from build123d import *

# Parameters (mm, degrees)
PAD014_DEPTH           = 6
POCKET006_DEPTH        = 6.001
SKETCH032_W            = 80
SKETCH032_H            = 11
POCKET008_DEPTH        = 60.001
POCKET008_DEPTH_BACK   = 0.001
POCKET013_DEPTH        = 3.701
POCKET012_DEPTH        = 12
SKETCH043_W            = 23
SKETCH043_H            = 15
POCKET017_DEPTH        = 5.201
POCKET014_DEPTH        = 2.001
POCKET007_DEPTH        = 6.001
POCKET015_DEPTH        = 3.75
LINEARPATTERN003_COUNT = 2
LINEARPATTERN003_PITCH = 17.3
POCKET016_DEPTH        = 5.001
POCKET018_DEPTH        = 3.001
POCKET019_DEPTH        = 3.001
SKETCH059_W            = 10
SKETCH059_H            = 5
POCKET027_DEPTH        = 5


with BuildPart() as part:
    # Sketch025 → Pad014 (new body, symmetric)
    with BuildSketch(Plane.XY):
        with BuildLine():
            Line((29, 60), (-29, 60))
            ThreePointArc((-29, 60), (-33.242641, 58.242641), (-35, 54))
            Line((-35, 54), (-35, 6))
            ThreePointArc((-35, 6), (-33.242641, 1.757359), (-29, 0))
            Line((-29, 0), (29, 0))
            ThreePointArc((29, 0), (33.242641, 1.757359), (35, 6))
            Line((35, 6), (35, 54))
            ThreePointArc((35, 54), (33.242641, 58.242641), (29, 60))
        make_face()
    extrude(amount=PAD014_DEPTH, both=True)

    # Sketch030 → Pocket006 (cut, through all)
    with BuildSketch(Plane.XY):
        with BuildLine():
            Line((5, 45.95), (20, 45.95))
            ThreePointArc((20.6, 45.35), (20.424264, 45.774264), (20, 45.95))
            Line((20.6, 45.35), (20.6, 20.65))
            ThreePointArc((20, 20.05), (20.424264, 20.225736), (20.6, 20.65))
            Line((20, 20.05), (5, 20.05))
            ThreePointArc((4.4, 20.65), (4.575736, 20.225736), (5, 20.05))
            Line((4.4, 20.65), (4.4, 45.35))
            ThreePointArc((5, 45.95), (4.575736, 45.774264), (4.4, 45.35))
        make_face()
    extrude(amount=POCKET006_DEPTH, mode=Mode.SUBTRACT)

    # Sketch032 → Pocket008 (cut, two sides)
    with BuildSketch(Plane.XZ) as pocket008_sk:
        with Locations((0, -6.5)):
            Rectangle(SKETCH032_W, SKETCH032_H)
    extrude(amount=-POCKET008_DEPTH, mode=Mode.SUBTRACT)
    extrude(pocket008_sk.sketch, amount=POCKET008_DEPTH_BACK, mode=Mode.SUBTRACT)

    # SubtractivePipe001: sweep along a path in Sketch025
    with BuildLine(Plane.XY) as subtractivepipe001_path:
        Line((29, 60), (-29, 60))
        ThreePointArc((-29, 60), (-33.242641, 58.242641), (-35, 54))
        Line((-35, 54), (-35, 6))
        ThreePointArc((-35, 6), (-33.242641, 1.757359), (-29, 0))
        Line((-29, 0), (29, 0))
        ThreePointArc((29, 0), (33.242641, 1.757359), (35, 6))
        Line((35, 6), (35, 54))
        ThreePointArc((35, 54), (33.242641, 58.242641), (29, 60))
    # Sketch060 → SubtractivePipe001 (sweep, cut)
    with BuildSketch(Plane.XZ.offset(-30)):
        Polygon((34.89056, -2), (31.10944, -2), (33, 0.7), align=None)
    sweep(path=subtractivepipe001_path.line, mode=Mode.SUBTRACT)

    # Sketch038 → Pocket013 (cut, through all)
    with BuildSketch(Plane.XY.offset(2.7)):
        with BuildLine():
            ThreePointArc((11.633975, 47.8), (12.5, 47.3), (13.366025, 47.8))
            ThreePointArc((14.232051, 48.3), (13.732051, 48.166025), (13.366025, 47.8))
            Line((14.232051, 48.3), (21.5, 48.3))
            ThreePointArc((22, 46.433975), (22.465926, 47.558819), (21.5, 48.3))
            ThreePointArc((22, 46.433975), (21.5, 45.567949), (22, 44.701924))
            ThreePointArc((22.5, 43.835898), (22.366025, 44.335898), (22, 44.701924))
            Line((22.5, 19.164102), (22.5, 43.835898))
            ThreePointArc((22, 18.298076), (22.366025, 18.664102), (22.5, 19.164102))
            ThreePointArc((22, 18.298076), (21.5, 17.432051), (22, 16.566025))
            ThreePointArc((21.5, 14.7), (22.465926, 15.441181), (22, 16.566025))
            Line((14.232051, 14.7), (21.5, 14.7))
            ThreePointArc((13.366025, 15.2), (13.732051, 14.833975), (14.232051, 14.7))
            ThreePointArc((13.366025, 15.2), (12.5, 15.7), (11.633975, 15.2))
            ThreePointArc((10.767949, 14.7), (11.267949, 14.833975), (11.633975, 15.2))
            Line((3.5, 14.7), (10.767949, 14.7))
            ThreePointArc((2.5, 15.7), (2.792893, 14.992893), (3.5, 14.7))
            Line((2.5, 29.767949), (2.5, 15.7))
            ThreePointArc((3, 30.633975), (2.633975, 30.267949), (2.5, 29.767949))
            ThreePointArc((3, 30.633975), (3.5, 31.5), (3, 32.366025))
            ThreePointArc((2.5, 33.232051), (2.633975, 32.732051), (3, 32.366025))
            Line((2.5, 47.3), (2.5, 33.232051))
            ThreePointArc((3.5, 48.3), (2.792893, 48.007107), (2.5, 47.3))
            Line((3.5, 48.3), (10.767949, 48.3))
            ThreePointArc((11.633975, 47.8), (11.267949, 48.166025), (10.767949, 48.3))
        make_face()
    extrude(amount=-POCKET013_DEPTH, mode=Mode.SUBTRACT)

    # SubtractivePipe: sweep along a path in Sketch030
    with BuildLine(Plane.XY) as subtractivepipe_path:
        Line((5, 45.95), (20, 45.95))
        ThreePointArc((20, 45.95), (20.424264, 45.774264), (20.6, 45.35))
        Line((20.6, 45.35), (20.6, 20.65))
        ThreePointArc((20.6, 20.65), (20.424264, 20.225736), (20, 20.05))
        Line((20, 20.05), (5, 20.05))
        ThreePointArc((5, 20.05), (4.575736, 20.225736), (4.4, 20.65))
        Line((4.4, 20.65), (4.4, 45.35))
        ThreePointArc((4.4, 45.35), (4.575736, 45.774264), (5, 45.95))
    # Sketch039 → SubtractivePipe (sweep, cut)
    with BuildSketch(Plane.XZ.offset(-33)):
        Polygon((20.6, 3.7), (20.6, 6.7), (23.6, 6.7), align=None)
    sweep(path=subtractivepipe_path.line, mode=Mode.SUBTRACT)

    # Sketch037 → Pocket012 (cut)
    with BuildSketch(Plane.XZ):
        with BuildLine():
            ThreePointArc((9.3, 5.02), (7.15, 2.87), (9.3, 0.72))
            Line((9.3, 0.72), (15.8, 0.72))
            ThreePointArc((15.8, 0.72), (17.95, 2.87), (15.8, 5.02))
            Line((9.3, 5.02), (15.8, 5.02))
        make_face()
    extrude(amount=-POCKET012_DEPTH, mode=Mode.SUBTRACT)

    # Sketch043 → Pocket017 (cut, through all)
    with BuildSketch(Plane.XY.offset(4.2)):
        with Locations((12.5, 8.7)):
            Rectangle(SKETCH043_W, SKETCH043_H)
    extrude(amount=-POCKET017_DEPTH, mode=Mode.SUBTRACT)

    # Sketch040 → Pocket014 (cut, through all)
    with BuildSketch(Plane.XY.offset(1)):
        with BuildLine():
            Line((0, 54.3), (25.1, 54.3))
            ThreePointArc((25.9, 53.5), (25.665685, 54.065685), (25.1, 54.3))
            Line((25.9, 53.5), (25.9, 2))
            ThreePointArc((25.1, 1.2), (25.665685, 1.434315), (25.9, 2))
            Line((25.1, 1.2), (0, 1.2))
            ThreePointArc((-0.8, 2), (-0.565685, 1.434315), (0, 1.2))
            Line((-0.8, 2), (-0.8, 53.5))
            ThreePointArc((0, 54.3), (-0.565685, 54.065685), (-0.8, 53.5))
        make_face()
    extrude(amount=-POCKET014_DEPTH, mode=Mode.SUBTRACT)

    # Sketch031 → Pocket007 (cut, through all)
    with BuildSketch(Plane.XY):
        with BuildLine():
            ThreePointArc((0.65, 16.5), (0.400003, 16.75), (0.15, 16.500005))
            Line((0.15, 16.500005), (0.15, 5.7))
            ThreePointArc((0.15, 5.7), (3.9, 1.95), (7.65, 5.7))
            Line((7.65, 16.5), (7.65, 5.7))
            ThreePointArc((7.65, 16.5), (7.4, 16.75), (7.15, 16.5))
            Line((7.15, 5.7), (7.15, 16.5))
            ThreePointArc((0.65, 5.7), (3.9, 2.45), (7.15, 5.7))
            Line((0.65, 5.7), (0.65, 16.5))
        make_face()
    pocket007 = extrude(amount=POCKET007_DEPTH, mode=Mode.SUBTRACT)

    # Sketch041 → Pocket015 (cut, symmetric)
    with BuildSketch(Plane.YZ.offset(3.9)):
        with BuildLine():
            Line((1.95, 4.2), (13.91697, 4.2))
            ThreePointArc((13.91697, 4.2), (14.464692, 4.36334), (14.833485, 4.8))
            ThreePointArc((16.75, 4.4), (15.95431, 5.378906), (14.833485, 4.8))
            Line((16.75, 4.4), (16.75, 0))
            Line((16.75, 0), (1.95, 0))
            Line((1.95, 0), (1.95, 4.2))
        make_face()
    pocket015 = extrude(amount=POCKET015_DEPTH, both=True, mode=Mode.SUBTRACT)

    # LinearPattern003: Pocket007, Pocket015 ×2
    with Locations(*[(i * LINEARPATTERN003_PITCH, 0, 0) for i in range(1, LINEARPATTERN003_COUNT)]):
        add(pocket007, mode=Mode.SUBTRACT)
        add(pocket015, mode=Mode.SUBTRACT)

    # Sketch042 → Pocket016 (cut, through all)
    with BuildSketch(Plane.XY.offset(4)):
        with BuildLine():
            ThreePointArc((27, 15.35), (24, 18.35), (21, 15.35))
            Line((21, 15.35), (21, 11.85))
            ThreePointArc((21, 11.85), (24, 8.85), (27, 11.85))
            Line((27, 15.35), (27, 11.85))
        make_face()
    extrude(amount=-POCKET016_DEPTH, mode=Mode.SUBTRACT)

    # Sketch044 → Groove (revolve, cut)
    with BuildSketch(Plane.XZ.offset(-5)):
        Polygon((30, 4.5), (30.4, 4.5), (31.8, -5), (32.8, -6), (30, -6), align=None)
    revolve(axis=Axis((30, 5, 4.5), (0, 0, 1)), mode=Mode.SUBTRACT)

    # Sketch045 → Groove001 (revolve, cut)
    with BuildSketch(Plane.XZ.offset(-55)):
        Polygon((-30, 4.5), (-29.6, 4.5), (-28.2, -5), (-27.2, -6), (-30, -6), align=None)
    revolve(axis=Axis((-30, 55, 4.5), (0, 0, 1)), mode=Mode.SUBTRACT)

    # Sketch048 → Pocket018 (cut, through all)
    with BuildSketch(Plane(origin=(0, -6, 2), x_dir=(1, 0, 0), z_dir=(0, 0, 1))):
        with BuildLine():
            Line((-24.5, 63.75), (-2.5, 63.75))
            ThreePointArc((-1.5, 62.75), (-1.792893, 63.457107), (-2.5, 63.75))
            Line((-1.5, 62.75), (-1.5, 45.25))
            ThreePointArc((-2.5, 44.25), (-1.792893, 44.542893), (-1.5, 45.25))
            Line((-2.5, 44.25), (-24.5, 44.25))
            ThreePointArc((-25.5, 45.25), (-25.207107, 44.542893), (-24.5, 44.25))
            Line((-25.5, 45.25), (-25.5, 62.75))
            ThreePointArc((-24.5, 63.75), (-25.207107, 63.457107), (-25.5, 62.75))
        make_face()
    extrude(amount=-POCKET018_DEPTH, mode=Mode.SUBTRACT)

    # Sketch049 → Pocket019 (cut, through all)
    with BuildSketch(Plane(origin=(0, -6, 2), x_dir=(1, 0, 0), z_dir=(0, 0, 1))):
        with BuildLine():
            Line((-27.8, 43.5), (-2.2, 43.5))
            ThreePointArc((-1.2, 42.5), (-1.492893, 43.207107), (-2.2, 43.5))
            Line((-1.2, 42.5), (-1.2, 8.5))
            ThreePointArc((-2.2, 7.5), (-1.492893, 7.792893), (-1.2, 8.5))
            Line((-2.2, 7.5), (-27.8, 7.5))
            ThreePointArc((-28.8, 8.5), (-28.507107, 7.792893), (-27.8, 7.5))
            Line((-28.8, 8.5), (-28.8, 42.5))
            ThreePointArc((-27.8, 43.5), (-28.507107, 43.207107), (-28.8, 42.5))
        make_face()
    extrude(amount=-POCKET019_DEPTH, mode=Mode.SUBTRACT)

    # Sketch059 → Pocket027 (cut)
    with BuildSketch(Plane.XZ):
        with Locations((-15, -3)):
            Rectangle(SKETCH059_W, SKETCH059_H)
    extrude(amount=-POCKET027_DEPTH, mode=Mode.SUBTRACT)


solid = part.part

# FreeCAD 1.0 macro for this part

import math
import FreeCAD as App
import Part
import Sketcher
from FreeCAD import Vector
Q = App.Units.Quantity

doc = App.newDocument("Part")
body = doc.addObject("PartDesign::Body", "Body")

# Sketch on XY plane
sketch1 = doc.addObject("Sketcher::SketchObject", "Sketch")
body.addObject(sketch1)
sketch1.AttachmentSupport = (doc.XY_Plane, [""])
sketch1.MapMode = "FlatFace"
sketch1.addGeometry([
    Part.LineSegment(Vector(29, 60, 0), Vector(-29, 60, 0)),  # 0
    Part.ArcOfCircle(Part.Circle(Vector(-29.000001, 54.000001, 0), Vector(0, 0, 1), 5.999999), math.radians(89.99999), math.radians(180.00001)),  # 1
    Part.LineSegment(Vector(-35, 54, 0), Vector(-35, 6, 0)),  # 2
    Part.ArcOfCircle(Part.Circle(Vector(-29.000001, 5.999999, 0), Vector(0, 0, 1), 5.999999), math.radians(179.99999), math.radians(270.00001)),  # 3
    Part.LineSegment(Vector(-29, 0, 0), Vector(29, 0, 0)),  # 4
    Part.ArcOfCircle(Part.Circle(Vector(29.000001, 5.999999, 0), Vector(0, 0, 1), 5.999999), math.radians(-90.00001), math.radians(0.00001)),  # 5
    Part.LineSegment(Vector(35, 6, 0), Vector(35, 54, 0)),  # 6
    Part.ArcOfCircle(Part.Circle(Vector(29.000001, 54.000001, 0), Vector(0, 0, 1), 5.999999), math.radians(-0.00001), math.radians(90.00001)),  # 7
], False)
sketch1.addConstraint([
    Sketcher.Constraint("Tangent", 0, 2, 1, 1),
    Sketcher.Constraint("Tangent", 1, 2, 2, 1),
    Sketcher.Constraint("Tangent", 2, 2, 3, 1),
    Sketcher.Constraint("Tangent", 3, 2, 4, 1),
    Sketcher.Constraint("Tangent", 4, 2, 5, 1),
    Sketcher.Constraint("Tangent", 5, 2, 6, 1),
    Sketcher.Constraint("Tangent", 6, 2, 7, 1),
    Sketcher.Constraint("Tangent", 7, 2, 0, 1),
    Sketcher.Constraint("Horizontal", 0),
    Sketcher.Constraint("Vertical", 2),
    Sketcher.Constraint("Horizontal", 4),
    Sketcher.Constraint("Vertical", 6),
    Sketcher.Constraint("Equal", 1, 3),
    Sketcher.Constraint("Equal", 3, 5),
    Sketcher.Constraint("Equal", 5, 7),
    Sketcher.Constraint("Symmetric", 3, 2, 4, 2, -1, 1),
    Sketcher.Constraint("Radius", 1, Q("5.999999 mm")),
    Sketcher.Constraint("DistanceX", 0, 2, 0, 1, Q("58 mm")),
    Sketcher.Constraint("DistanceY", 2, 2, 2, 1, Q("48 mm")),
])
pad1 = doc.addObject("PartDesign::Pad", "Pad")
body.addObject(pad1)
pad1.Profile = sketch1
pad1.Length = 12
pad1.Midplane = True

# Sketch on XY plane
sketch2 = doc.addObject("Sketcher::SketchObject", "Sketch001")
body.addObject(sketch2)
sketch2.AttachmentSupport = (doc.XY_Plane, [""])
sketch2.MapMode = "FlatFace"
sketch2.addGeometry([
    Part.LineSegment(Vector(20, 45.95, 0), Vector(5, 45.95, 0)),  # 0
    Part.ArcOfCircle(Part.Circle(Vector(5, 45.35, 0), Vector(0, 0, 1), 0.6), math.radians(90.000022), math.radians(179.999978)),  # 1
    Part.LineSegment(Vector(4.4, 45.35, 0), Vector(4.4, 20.65, 0)),  # 2
    Part.ArcOfCircle(Part.Circle(Vector(5, 20.65, 0), Vector(0, 0, 1), 0.6), math.radians(-179.999978), math.radians(-90.000022)),  # 3
    Part.LineSegment(Vector(5, 20.05, 0), Vector(20, 20.05, 0)),  # 4
    Part.ArcOfCircle(Part.Circle(Vector(20, 20.65, 0), Vector(0, 0, 1), 0.6), math.radians(-89.999978), math.radians(-0.000022)),  # 5
    Part.LineSegment(Vector(20.6, 20.65, 0), Vector(20.6, 45.35, 0)),  # 6
    Part.ArcOfCircle(Part.Circle(Vector(20, 45.35, 0), Vector(0, 0, 1), 0.6), math.radians(0.000022), math.radians(89.999978)),  # 7
], False)
sketch2.addConstraint([
    Sketcher.Constraint("Tangent", 0, 2, 1, 1),
    Sketcher.Constraint("Tangent", 1, 2, 2, 1),
    Sketcher.Constraint("Tangent", 2, 2, 3, 1),
    Sketcher.Constraint("Tangent", 3, 2, 4, 1),
    Sketcher.Constraint("Tangent", 4, 2, 5, 1),
    Sketcher.Constraint("Tangent", 5, 2, 6, 1),
    Sketcher.Constraint("Tangent", 6, 2, 7, 1),
    Sketcher.Constraint("Tangent", 7, 2, 0, 1),
    Sketcher.Constraint("Horizontal", 0),
    Sketcher.Constraint("Vertical", 2),
    Sketcher.Constraint("Horizontal", 4),
    Sketcher.Constraint("Vertical", 6),
    Sketcher.Constraint("Equal", 1, 3),
    Sketcher.Constraint("Equal", 3, 5),
    Sketcher.Constraint("Equal", 5, 7),
    Sketcher.Constraint("Radius", 1, Q("0.6 mm")),
    Sketcher.Constraint("DistanceX", 0, 2, 0, 1, Q("15 mm")),
    Sketcher.Constraint("DistanceY", 2, 2, 2, 1, Q("24.7 mm")),
    Sketcher.Constraint("DistanceX", -1, 1, 1, 3, Q("5 mm")),
    Sketcher.Constraint("DistanceY", -1, 1, 1, 3, Q("45.35 mm")),
])
pocket1 = doc.addObject("PartDesign::Pocket", "Pocket")
body.addObject(pocket1)
pocket1.Profile = sketch2
pocket1.Type = "ThroughAll"
pocket1.Reversed = True

# Sketch on XZ plane
sketch3 = doc.addObject("Sketcher::SketchObject", "Sketch002")
body.addObject(sketch3)
sketch3.AttachmentSupport = (doc.XZ_Plane, [""])
sketch3.MapMode = "FlatFace"
sketch3.addGeometry([
    Part.LineSegment(Vector(-40, -1, 0), Vector(-40, -12, 0)),
    Part.LineSegment(Vector(-40, -12, 0), Vector(40, -12, 0)),
    Part.LineSegment(Vector(40, -12, 0), Vector(40, -1, 0)),
    Part.LineSegment(Vector(40, -1, 0), Vector(-40, -1, 0)),
], False)
sketch3.addConstraint([
    Sketcher.Constraint("Coincident", 0, 2, 1, 1),
    Sketcher.Constraint("Coincident", 1, 2, 2, 1),
    Sketcher.Constraint("Coincident", 2, 2, 3, 1),
    Sketcher.Constraint("Coincident", 3, 2, 0, 1),
    Sketcher.Constraint("Vertical", 0),
    Sketcher.Constraint("Horizontal", 1),
    Sketcher.Constraint("Vertical", 2),
    Sketcher.Constraint("Horizontal", 3),
    Sketcher.Constraint("DistanceX", 1, 1, 1, 2, Q("80 mm")),
    Sketcher.Constraint("DistanceY", 0, 2, 0, 1, Q("11 mm")),
    Sketcher.Constraint("DistanceX", 0, 2, -1, 1, Q("40 mm")),
    Sketcher.Constraint("DistanceY", 0, 2, -1, 1, Q("12 mm")),
])
pocket2 = doc.addObject("PartDesign::Pocket", "Pocket001")
body.addObject(pocket2)
pocket2.Profile = sketch3
pocket2.Type = "ThroughAll"
pocket2.Midplane = True

# Sketch on XZ plane
sketch4 = doc.addObject("Sketcher::SketchObject", "Sketch003")
body.addObject(sketch4)
sketch4.AttachmentSupport = (doc.XZ_Plane, [""])
sketch4.MapMode = "FlatFace"
sketch4.AttachmentOffset = App.Placement(Vector(0, 0, -30), App.Rotation())
sketch4.addGeometry([
    Part.LineSegment(Vector(31.10944, -2, 0), Vector(34.89056, -2, 0)),
    Part.LineSegment(Vector(34.89056, -2, 0), Vector(33, 0.7, 0)),
    Part.LineSegment(Vector(33, 0.7, 0), Vector(31.10944, -2, 0)),
], False)
sketch4.addConstraint([
    Sketcher.Constraint("Coincident", 0, 2, 1, 1),
    Sketcher.Constraint("Coincident", 1, 2, 2, 1),
    Sketcher.Constraint("Coincident", 2, 2, 0, 1),
    Sketcher.Constraint("Horizontal", 0),
    Sketcher.Constraint("Equal", 1, 2),
    Sketcher.Constraint("Angle", 1, Q("124.999995 deg")),
    Sketcher.Constraint("DistanceY", 0, 2, -1, 1, Q("2 mm")),
    Sketcher.Constraint("DistanceX", -1, 1, 1, 2, Q("33 mm")),
    Sketcher.Constraint("DistanceY", -1, 1, 1, 2, Q("0.7 mm")),
])

# Sketch on XY plane
sketch5 = doc.addObject("Sketcher::SketchObject", "Sketch004")
body.addObject(sketch5)
sketch5.AttachmentSupport = (doc.XY_Plane, [""])
sketch5.MapMode = "FlatFace"
sketch5.addGeometry([
    Part.LineSegment(Vector(29, 60, 0), Vector(-29, 60, 0)),  # 0
    Part.ArcOfCircle(Part.Circle(Vector(-29.000001, 54.000001, 0), Vector(0, 0, 1), 5.999999), math.radians(89.99999), math.radians(180.00001)),  # 1
    Part.LineSegment(Vector(-35, 54, 0), Vector(-35, 6, 0)),  # 2
    Part.ArcOfCircle(Part.Circle(Vector(-29.000001, 5.999999, 0), Vector(0, 0, 1), 5.999999), math.radians(179.99999), math.radians(270.00001)),  # 3
    Part.LineSegment(Vector(-29, 0, 0), Vector(29, 0, 0)),  # 4
    Part.ArcOfCircle(Part.Circle(Vector(29.000001, 5.999999, 0), Vector(0, 0, 1), 5.999999), math.radians(-90.00001), math.radians(0.00001)),  # 5
    Part.LineSegment(Vector(35, 6, 0), Vector(35, 54, 0)),  # 6
    Part.ArcOfCircle(Part.Circle(Vector(29.000001, 54.000001, 0), Vector(0, 0, 1), 5.999999), math.radians(-0.00001), math.radians(90.00001)),  # 7
], False)
sketch5.addConstraint([
    Sketcher.Constraint("Tangent", 0, 2, 1, 1),
    Sketcher.Constraint("Tangent", 1, 2, 2, 1),
    Sketcher.Constraint("Tangent", 2, 2, 3, 1),
    Sketcher.Constraint("Tangent", 3, 2, 4, 1),
    Sketcher.Constraint("Tangent", 4, 2, 5, 1),
    Sketcher.Constraint("Tangent", 5, 2, 6, 1),
    Sketcher.Constraint("Tangent", 6, 2, 7, 1),
    Sketcher.Constraint("Tangent", 7, 2, 0, 1),
    Sketcher.Constraint("Horizontal", 0),
    Sketcher.Constraint("Vertical", 2),
    Sketcher.Constraint("Horizontal", 4),
    Sketcher.Constraint("Vertical", 6),
    Sketcher.Constraint("Equal", 1, 3),
    Sketcher.Constraint("Equal", 3, 5),
    Sketcher.Constraint("Equal", 5, 7),
    Sketcher.Constraint("Symmetric", 3, 2, 4, 2, -1, 1),
    Sketcher.Constraint("Radius", 1, Q("5.999999 mm")),
    Sketcher.Constraint("DistanceX", 0, 2, 0, 1, Q("58 mm")),
    Sketcher.Constraint("DistanceY", 2, 2, 2, 1, Q("48 mm")),
])
doc.recompute()

subtractivepipe = doc.addObject("PartDesign::SubtractivePipe", "SubtractivePipe")
body.addObject(subtractivepipe)
subtractivepipe.Profile = sketch4
subtractivepipe.Spine = (sketch5, ["Edge1", "Edge2", "Edge3", "Edge4", "Edge5", "Edge6", "Edge7", "Edge8"])

# Sketch on XY plane
sketch6 = doc.addObject("Sketcher::SketchObject", "Sketch005")
body.addObject(sketch6)
sketch6.AttachmentSupport = (doc.XY_Plane, [""])
sketch6.MapMode = "FlatFace"
sketch6.AttachmentOffset = App.Placement(Vector(0, 0, 2.7), App.Rotation())
sketch6.addGeometry([
    Part.ArcOfCircle(Part.Circle(Vector(12.5, 48.299999, 0), Vector(0, 0, 1), 0.999999), math.radians(-150.000023), math.radians(-29.999977)),  # 0
    Part.ArcOfCircle(Part.Circle(Vector(10.767947, 47.299996, 0), Vector(0, 0, 1), 1.000004), math.radians(30.000139), math.radians(89.999896)),  # 1
    Part.LineSegment(Vector(10.767949, 48.3, 0), Vector(3.5, 48.3, 0)),  # 2
    Part.ArcOfCircle(Part.Circle(Vector(3.499999, 47.300001, 0), Vector(0, 0, 1), 0.999999), math.radians(89.999957), math.radians(180.000043)),  # 3
    Part.LineSegment(Vector(2.5, 47.3, 0), Vector(2.5, 33.232051, 0)),  # 4
    Part.ArcOfCircle(Part.Circle(Vector(3.500004, 33.232053, 0), Vector(0, 0, 1), 1.000004), math.radians(-179.999896), math.radians(-120.000139)),  # 5
    Part.ArcOfCircle(Part.Circle(Vector(2.500001, 31.5, 0), Vector(0, 0, 1), 0.999999), math.radians(-60.000023), math.radians(60.000023)),  # 6
    Part.ArcOfCircle(Part.Circle(Vector(3.500004, 29.767947, 0), Vector(0, 0, 1), 1.000004), math.radians(120.000139), math.radians(179.999896)),  # 7
    Part.LineSegment(Vector(2.5, 29.767949, 0), Vector(2.5, 15.7, 0)),  # 8
    Part.ArcOfCircle(Part.Circle(Vector(3.499999, 15.699999, 0), Vector(0, 0, 1), 0.999999), math.radians(179.999957), math.radians(270.000043)),  # 9
    Part.LineSegment(Vector(3.5, 14.7, 0), Vector(10.767949, 14.7, 0)),  # 10
    Part.ArcOfCircle(Part.Circle(Vector(10.767947, 15.700004, 0), Vector(0, 0, 1), 1.000004), math.radians(-89.999896), math.radians(-30.000139)),  # 11
    Part.ArcOfCircle(Part.Circle(Vector(12.5, 14.700001, 0), Vector(0, 0, 1), 0.999999), math.radians(29.999977), math.radians(150.000023)),  # 12
    Part.ArcOfCircle(Part.Circle(Vector(14.232053, 15.700004, 0), Vector(0, 0, 1), 1.000004), math.radians(-149.999861), math.radians(-90.000104)),  # 13
    Part.LineSegment(Vector(14.232051, 14.7, 0), Vector(21.5, 14.7, 0)),  # 14
    Part.ArcOfCircle(Part.Circle(Vector(21.5, 15.7, 0), Vector(0, 0, 1), 1), math.radians(-90.000022), math.radians(60.000016)),  # 15
    Part.ArcOfCircle(Part.Circle(Vector(22.5, 17.43205, 0), Vector(0, 0, 1), 1), math.radians(120.000006), math.radians(239.999994)),  # 16
    Part.ArcOfCircle(Part.Circle(Vector(21.499996, 19.164104, 0), Vector(0, 0, 1), 1.000004), math.radians(-59.999861), math.radians(-0.000104)),  # 17
    Part.LineSegment(Vector(22.5, 19.164102, 0), Vector(22.5, 43.835898, 0)),  # 18
    Part.ArcOfCircle(Part.Circle(Vector(21.499996, 43.835896, 0), Vector(0, 0, 1), 1.000004), math.radians(0.000104), math.radians(59.999861)),  # 19
    Part.ArcOfCircle(Part.Circle(Vector(22.5, 45.567949, 0), Vector(0, 0, 1), 1), math.radians(120.000006), math.radians(239.999994)),  # 20
    Part.ArcOfCircle(Part.Circle(Vector(21.5, 47.3, 0), Vector(0, 0, 1), 1), math.radians(-60.000016), math.radians(90.000022)),  # 21
    Part.LineSegment(Vector(21.5, 48.3, 0), Vector(14.232051, 48.3, 0)),  # 22
    Part.ArcOfCircle(Part.Circle(Vector(14.232053, 47.299996, 0), Vector(0, 0, 1), 1.000004), math.radians(90.000104), math.radians(149.999861)),  # 23
], False)
sketch6.addConstraint([
    Sketcher.Constraint("Coincident", 0, 1, 1, 1),
    Sketcher.Constraint("Tangent", 1, 2, 2, 1),
    Sketcher.Constraint("Tangent", 2, 2, 3, 1),
    Sketcher.Constraint("Tangent", 3, 2, 4, 1),
    Sketcher.Constraint("Tangent", 4, 2, 5, 1),
    Sketcher.Constraint("Coincident", 5, 2, 6, 2),
    Sketcher.Constraint("Coincident", 6, 1, 7, 1),
    Sketcher.Constraint("Tangent", 7, 2, 8, 1),
    Sketcher.Constraint("Tangent", 8, 2, 9, 1),
    Sketcher.Constraint("Tangent", 9, 2, 10, 1),
    Sketcher.Constraint("Tangent", 10, 2, 11, 1),
    Sketcher.Constraint("Coincident", 11, 2, 12, 2),
    Sketcher.Constraint("Coincident", 12, 1, 13, 1),
    Sketcher.Constraint("Tangent", 13, 2, 14, 1),
    Sketcher.Constraint("Tangent", 14, 2, 15, 1),
    Sketcher.Constraint("Tangent", 15, 2, 16, 2),
    Sketcher.Constraint("Coincident", 16, 1, 17, 1),
    Sketcher.Constraint("Tangent", 17, 2, 18, 1),
    Sketcher.Constraint("Tangent", 18, 2, 19, 1),
    Sketcher.Constraint("Coincident", 19, 2, 20, 2),
    Sketcher.Constraint("Tangent", 20, 1, 21, 1),
    Sketcher.Constraint("Tangent", 21, 2, 22, 1),
    Sketcher.Constraint("Tangent", 22, 2, 23, 1),
    Sketcher.Constraint("Coincident", 23, 2, 0, 2),
    Sketcher.Constraint("Horizontal", 2),
    Sketcher.Constraint("Vertical", 4),
    Sketcher.Constraint("Vertical", 8),
    Sketcher.Constraint("Horizontal", 10),
    Sketcher.Constraint("Horizontal", 14),
    Sketcher.Constraint("Vertical", 18),
    Sketcher.Constraint("Horizontal", 22),
    Sketcher.Constraint("Equal", 0, 3),
    Sketcher.Constraint("Equal", 1, 5),
    Sketcher.Constraint("Equal", 3, 6),
    Sketcher.Constraint("Equal", 5, 7),
    Sketcher.Constraint("Equal", 6, 9),
    Sketcher.Constraint("Equal", 7, 11),
    Sketcher.Constraint("Equal", 9, 12),
    Sketcher.Constraint("Equal", 11, 13),
    Sketcher.Constraint("Equal", 12, 15),
    Sketcher.Constraint("Equal", 15, 16),
    Sketcher.Constraint("Equal", 13, 17),
    Sketcher.Constraint("Equal", 17, 19),
    Sketcher.Constraint("Equal", 16, 20),
    Sketcher.Constraint("Equal", 20, 21),
    Sketcher.Constraint("Equal", 19, 23),
    Sketcher.Constraint("Horizontal", 11, 3, 13, 3),
    Sketcher.Constraint("Horizontal", 3, 3, 21, 3),
    Sketcher.Constraint("Horizontal", 0, 3, 1, 2),
    Sketcher.Constraint("Horizontal", 12, 3, 9, 2),
    Sketcher.Constraint("Horizontal", 11, 2, 12, 1),
    Sketcher.Constraint("Horizontal", 0, 1, 23, 2),
    Sketcher.Constraint("Vertical", 5, 3, 7, 3),
    Sketcher.Constraint("Vertical", 1, 3, 11, 3),
    Sketcher.Constraint("Vertical", 16, 3, 20, 3),
    Sketcher.Constraint("Vertical", 15, 3, 21, 3),
    Sketcher.Constraint("Vertical", 6, 3, 3, 2),
    Sketcher.Constraint("Vertical", 5, 2, 6, 1),
    Sketcher.Constraint("Vertical", 0, 1, 11, 2),
    Sketcher.Constraint("Vertical", 15, 2, 16, 1),
    Sketcher.Constraint("Vertical", 20, 3, 17, 2),
    Sketcher.Constraint("Vertical", 16, 1, 19, 2),
    Sketcher.Constraint("Equal", 10, 14),
    Sketcher.Constraint("Equal", 4, 8),
    Sketcher.Constraint("Radius", 0, Q("0.999999 mm")),
    Sketcher.Constraint("DistanceX", -1, 1, 5, 2, Q("3 mm")),
    Sketcher.Constraint("DistanceX", -1, 1, 15, 2, Q("22 mm")),
    Sketcher.Constraint("DistanceX", 3, 3, 0, 3, Q("9.000001 mm")),
    Sketcher.Constraint("DistanceX", 15, 3, 16, 3, Q("1 mm")),
    Sketcher.Constraint("DistanceY", -1, 1, 0, 3, Q("48.299999 mm")),
    Sketcher.Constraint("DistanceY", -1, 1, 6, 3, Q("31.5 mm")),
    Sketcher.Constraint("DistanceY", -1, 1, 0, 1, Q("47.8 mm")),
    Sketcher.Constraint("Radius", 1, Q("1.000004 mm")),
])
pocket3 = doc.addObject("PartDesign::Pocket", "Pocket002")
body.addObject(pocket3)
pocket3.Profile = sketch6
pocket3.Type = "ThroughAll"

# Sketch on XZ plane
sketch7 = doc.addObject("Sketcher::SketchObject", "Sketch006")
body.addObject(sketch7)
sketch7.AttachmentSupport = (doc.XZ_Plane, [""])
sketch7.MapMode = "FlatFace"
sketch7.AttachmentOffset = App.Placement(Vector(0, 0, -33), App.Rotation())
sketch7.addGeometry([
    Part.LineSegment(Vector(20.6, 6.7, 0), Vector(20.6, 3.7, 0)),
    Part.LineSegment(Vector(20.6, 3.7, 0), Vector(23.6, 6.7, 0)),
    Part.LineSegment(Vector(23.6, 6.7, 0), Vector(20.6, 6.7, 0)),
], False)
sketch7.addConstraint([
    Sketcher.Constraint("Coincident", 0, 2, 1, 1),
    Sketcher.Constraint("Coincident", 1, 2, 2, 1),
    Sketcher.Constraint("Coincident", 2, 2, 0, 1),
    Sketcher.Constraint("Vertical", 0),
    Sketcher.Constraint("Horizontal", 2),
    Sketcher.Constraint("Equal", 2, 0),
    Sketcher.Constraint("DistanceX", 2, 2, 2, 1, Q("3 mm")),
    Sketcher.Constraint("DistanceX", -1, 1, 0, 2, Q("20.6 mm")),
    Sketcher.Constraint("DistanceY", -1, 1, 0, 2, Q("3.7 mm")),
])

# Sketch on XY plane
sketch8 = doc.addObject("Sketcher::SketchObject", "Sketch007")
body.addObject(sketch8)
sketch8.AttachmentSupport = (doc.XY_Plane, [""])
sketch8.MapMode = "FlatFace"
sketch8.addGeometry([
    Part.LineSegment(Vector(5, 45.95, 0), Vector(20, 45.95, 0)),  # 0
    Part.ArcOfCircle(Part.Circle(Vector(20, 45.35, 0), Vector(0, 0, 1), 0.6), math.radians(0.000022), math.radians(89.999978)),  # 1
    Part.LineSegment(Vector(20.6, 45.35, 0), Vector(20.6, 20.65, 0)),  # 2
    Part.ArcOfCircle(Part.Circle(Vector(20, 20.65, 0), Vector(0, 0, 1), 0.6), math.radians(-89.999978), math.radians(-0.000022)),  # 3
    Part.LineSegment(Vector(20, 20.05, 0), Vector(5, 20.05, 0)),  # 4
    Part.ArcOfCircle(Part.Circle(Vector(5, 20.65, 0), Vector(0, 0, 1), 0.6), math.radians(-179.999978), math.radians(-90.000022)),  # 5
    Part.LineSegment(Vector(4.4, 20.65, 0), Vector(4.4, 45.35, 0)),  # 6
    Part.ArcOfCircle(Part.Circle(Vector(5, 45.35, 0), Vector(0, 0, 1), 0.6), math.radians(90.000022), math.radians(179.999978)),  # 7
], False)
sketch8.addConstraint([
    Sketcher.Constraint("Tangent", 0, 2, 1, 2),
    Sketcher.Constraint("Tangent", 1, 1, 2, 1),
    Sketcher.Constraint("Tangent", 2, 2, 3, 2),
    Sketcher.Constraint("Tangent", 3, 1, 4, 1),
    Sketcher.Constraint("Tangent", 4, 2, 5, 2),
    Sketcher.Constraint("Tangent", 5, 1, 6, 1),
    Sketcher.Constraint("Tangent", 6, 2, 7, 2),
    Sketcher.Constraint("Tangent", 7, 1, 0, 1),
    Sketcher.Constraint("Horizontal", 0),
    Sketcher.Constraint("Vertical", 2),
    Sketcher.Constraint("Horizontal", 4),
    Sketcher.Constraint("Vertical", 6),
    Sketcher.Constraint("Equal", 1, 3),
    Sketcher.Constraint("Equal", 3, 5),
    Sketcher.Constraint("Equal", 5, 7),
    Sketcher.Constraint("Radius", 1, Q("0.6 mm")),
    Sketcher.Constraint("DistanceX", 0, 1, 0, 2, Q("15 mm")),
    Sketcher.Constraint("DistanceY", 2, 2, 2, 1, Q("24.7 mm")),
    Sketcher.Constraint("DistanceX", -1, 1, 1, 3, Q("20 mm")),
    Sketcher.Constraint("DistanceY", -1, 1, 1, 3, Q("45.35 mm")),
])
doc.recompute()

subtractivepipe2 = doc.addObject("PartDesign::SubtractivePipe", "SubtractivePipe001")
body.addObject(subtractivepipe2)
subtractivepipe2.Profile = sketch7
subtractivepipe2.Spine = (sketch8, ["Edge1", "Edge2", "Edge3", "Edge4", "Edge5", "Edge6", "Edge7", "Edge8"])

# Sketch on XZ plane
sketch9 = doc.addObject("Sketcher::SketchObject", "Sketch008")
body.addObject(sketch9)
sketch9.AttachmentSupport = (doc.XZ_Plane, [""])
sketch9.MapMode = "FlatFace"
sketch9.addGeometry([
    Part.ArcOfCircle(Part.Circle(Vector(9.3, 2.87, 0), Vector(0, 0, 1), 2.15), math.radians(90), math.radians(270)),
    Part.LineSegment(Vector(9.3, 0.72, 0), Vector(15.8, 0.72, 0)),
    Part.ArcOfCircle(Part.Circle(Vector(15.8, 2.87, 0), Vector(0, 0, 1), 2.15), math.radians(-90), math.radians(90)),
    Part.LineSegment(Vector(15.8, 5.02, 0), Vector(9.3, 5.02, 0)),
], False)
sketch9.addConstraint([
    Sketcher.Constraint("Tangent", 0, 2, 1, 1),
    Sketcher.Constraint("Tangent", 1, 2, 2, 1),
    Sketcher.Constraint("Tangent", 2, 2, 3, 1),
    Sketcher.Constraint("Tangent", 3, 2, 0, 1),
    Sketcher.Constraint("Horizontal", 1),
    Sketcher.Constraint("Horizontal", 3),
    Sketcher.Constraint("Radius", 0, Q("2.15 mm")),
    Sketcher.Constraint("DistanceX", 1, 1, 1, 2, Q("6.5 mm")),
    Sketcher.Constraint("DistanceX", -1, 1, 0, 3, Q("9.3 mm")),
    Sketcher.Constraint("DistanceY", -1, 1, 0, 3, Q("2.87 mm")),
])
pocket4 = doc.addObject("PartDesign::Pocket", "Pocket003")
body.addObject(pocket4)
pocket4.Profile = sketch9
pocket4.Length = 12

# Sketch on XY plane
sketch10 = doc.addObject("Sketcher::SketchObject", "Sketch009")
body.addObject(sketch10)
sketch10.AttachmentSupport = (doc.XY_Plane, [""])
sketch10.MapMode = "FlatFace"
sketch10.AttachmentOffset = App.Placement(Vector(0, 0, 4.2), App.Rotation())
sketch10.addGeometry([
    Part.LineSegment(Vector(1, 16.2, 0), Vector(1, 1.2, 0)),
    Part.LineSegment(Vector(1, 1.2, 0), Vector(24, 1.2, 0)),
    Part.LineSegment(Vector(24, 1.2, 0), Vector(24, 16.2, 0)),
    Part.LineSegment(Vector(24, 16.2, 0), Vector(1, 16.2, 0)),
], False)
sketch10.addConstraint([
    Sketcher.Constraint("Coincident", 0, 2, 1, 1),
    Sketcher.Constraint("Coincident", 1, 2, 2, 1),
    Sketcher.Constraint("Coincident", 2, 2, 3, 1),
    Sketcher.Constraint("Coincident", 3, 2, 0, 1),
    Sketcher.Constraint("Vertical", 0),
    Sketcher.Constraint("Horizontal", 1),
    Sketcher.Constraint("Vertical", 2),
    Sketcher.Constraint("Horizontal", 3),
    Sketcher.Constraint("DistanceX", 1, 1, 1, 2, Q("23 mm")),
    Sketcher.Constraint("DistanceY", 0, 2, 0, 1, Q("15 mm")),
    Sketcher.Constraint("DistanceX", -1, 1, 0, 2, Q("1 mm")),
    Sketcher.Constraint("DistanceY", -1, 1, 0, 2, Q("1.2 mm")),
])
pocket5 = doc.addObject("PartDesign::Pocket", "Pocket004")
body.addObject(pocket5)
pocket5.Profile = sketch10
pocket5.Type = "ThroughAll"

# Sketch on XY plane
sketch11 = doc.addObject("Sketcher::SketchObject", "Sketch010")
body.addObject(sketch11)
sketch11.AttachmentSupport = (doc.XY_Plane, [""])
sketch11.MapMode = "FlatFace"
sketch11.AttachmentOffset = App.Placement(Vector(0, 0, 1), App.Rotation())
sketch11.addGeometry([
    Part.LineSegment(Vector(25.1, 54.3, 0), Vector(0, 54.3, 0)),  # 0
    Part.ArcOfCircle(Part.Circle(Vector(0.000001, 53.499999, 0), Vector(0, 0, 1), 0.800001), math.radians(90.000104), math.radians(179.999896)),  # 1
    Part.LineSegment(Vector(-0.8, 53.5, 0), Vector(-0.8, 2, 0)),  # 2
    Part.ArcOfCircle(Part.Circle(Vector(0.000001, 2.000001, 0), Vector(0, 0, 1), 0.800001), math.radians(-179.999896), math.radians(-90.000104)),  # 3
    Part.LineSegment(Vector(0, 1.2, 0), Vector(25.1, 1.2, 0)),  # 4
    Part.ArcOfCircle(Part.Circle(Vector(25.099999, 2.000001, 0), Vector(0, 0, 1), 0.800001), math.radians(-89.999896), math.radians(-0.000104)),  # 5
    Part.LineSegment(Vector(25.9, 2, 0), Vector(25.9, 53.5, 0)),  # 6
    Part.ArcOfCircle(Part.Circle(Vector(25.099999, 53.499999, 0), Vector(0, 0, 1), 0.800001), math.radians(0.000104), math.radians(89.999896)),  # 7
], False)
sketch11.addConstraint([
    Sketcher.Constraint("Tangent", 0, 2, 1, 1),
    Sketcher.Constraint("Tangent", 1, 2, 2, 1),
    Sketcher.Constraint("Tangent", 2, 2, 3, 1),
    Sketcher.Constraint("Tangent", 3, 2, 4, 1),
    Sketcher.Constraint("Tangent", 4, 2, 5, 1),
    Sketcher.Constraint("Tangent", 5, 2, 6, 1),
    Sketcher.Constraint("Tangent", 6, 2, 7, 1),
    Sketcher.Constraint("Tangent", 7, 2, 0, 1),
    Sketcher.Constraint("Horizontal", 0),
    Sketcher.Constraint("Vertical", 2),
    Sketcher.Constraint("Horizontal", 4),
    Sketcher.Constraint("Vertical", 6),
    Sketcher.Constraint("Equal", 1, 3),
    Sketcher.Constraint("Equal", 3, 5),
    Sketcher.Constraint("Equal", 5, 7),
    Sketcher.Constraint("PointOnObject", 1, 3, -2),
    Sketcher.Constraint("Radius", 1, Q("0.800001 mm")),
    Sketcher.Constraint("DistanceX", 0, 2, 0, 1, Q("25.1 mm")),
    Sketcher.Constraint("DistanceY", 2, 2, 2, 1, Q("51.5 mm")),
    Sketcher.Constraint("DistanceY", -1, 1, 3, 3, Q("2.000001 mm")),
])
pocket6 = doc.addObject("PartDesign::Pocket", "Pocket005")
body.addObject(pocket6)
pocket6.Profile = sketch11
pocket6.Type = "ThroughAll"

# Sketch on XY plane
sketch12 = doc.addObject("Sketcher::SketchObject", "Sketch011")
body.addObject(sketch12)
sketch12.AttachmentSupport = (doc.XY_Plane, [""])
sketch12.MapMode = "FlatFace"
sketch12.addGeometry([
    Part.ArcOfCircle(Part.Circle(Vector(0.4, 16.5, 0), Vector(0, 0, 1), 0.25), math.radians(0), math.radians(179.998854)),  # 0
    Part.LineSegment(Vector(0.15, 16.500005, 0), Vector(0.15, 5.7, 0)),  # 1
    Part.ArcOfCircle(Part.Circle(Vector(3.9, 5.7, 0), Vector(0, 0, 1), 3.75), math.radians(180), math.radians(360)),  # 2
    Part.LineSegment(Vector(7.65, 5.7, 0), Vector(7.65, 16.5, 0)),  # 3
    Part.ArcOfCircle(Part.Circle(Vector(7.4, 16.5, 0), Vector(0, 0, 1), 0.25), math.radians(0), math.radians(180)),  # 4
    Part.LineSegment(Vector(7.15, 16.5, 0), Vector(7.15, 5.7, 0)),  # 5
    Part.ArcOfCircle(Part.Circle(Vector(3.9, 5.7, 0), Vector(0, 0, 1), 3.25), math.radians(180), math.radians(360)),  # 6
    Part.LineSegment(Vector(0.65, 5.7, 0), Vector(0.65, 16.5, 0)),  # 7
], False)
sketch12.addConstraint([
    Sketcher.Constraint("Coincident", 0, 2, 1, 1),
    Sketcher.Constraint("Tangent", 1, 2, 2, 1),
    Sketcher.Constraint("Tangent", 2, 2, 3, 1),
    Sketcher.Constraint("Tangent", 3, 2, 4, 1),
    Sketcher.Constraint("Tangent", 4, 2, 5, 1),
    Sketcher.Constraint("Tangent", 5, 2, 6, 2),
    Sketcher.Constraint("Tangent", 6, 1, 7, 1),
    Sketcher.Constraint("Tangent", 7, 2, 0, 1),
    Sketcher.Constraint("Vertical", 1),
    Sketcher.Constraint("Vertical", 3),
    Sketcher.Constraint("Vertical", 5),
    Sketcher.Constraint("Vertical", 7),
    Sketcher.Constraint("Coincident", 6, 3, 2, 3),
    Sketcher.Constraint("Horizontal", 0, 3, 4, 3),
    Sketcher.Constraint("Radius", 0, Q("0.25 mm")),
    Sketcher.Constraint("Radius", 2, Q("3.75 mm")),
    Sketcher.Constraint("DistanceY", 3, 1, 3, 2, Q("10.8 mm")),
    Sketcher.Constraint("DistanceX", -1, 1, 0, 3, Q("0.4 mm")),
    Sketcher.Constraint("DistanceY", -1, 1, 0, 3, Q("16.5 mm")),
    Sketcher.Constraint("DistanceY", 1, 2, 1, 1, Q("10.800005 mm")),
])
pocket7 = doc.addObject("PartDesign::Pocket", "Pocket006")
body.addObject(pocket7)
pocket7.Profile = sketch12
pocket7.Type = "ThroughAll"
pocket7.Reversed = True

# Sketch on YZ plane
sketch13 = doc.addObject("Sketcher::SketchObject", "Sketch012")
body.addObject(sketch13)
sketch13.AttachmentSupport = (doc.YZ_Plane, [""])
sketch13.MapMode = "FlatFace"
sketch13.AttachmentOffset = App.Placement(Vector(0, 0, 3.9), App.Rotation())
sketch13.addGeometry([
    Part.LineSegment(Vector(13.91697, 4.2, 0), Vector(1.95, 4.2, 0)),  # 0
    Part.LineSegment(Vector(1.95, 4.2, 0), Vector(1.95, 0, 0)),  # 1
    Part.LineSegment(Vector(1.95, 0, 0), Vector(16.75, 0, 0)),  # 2
    Part.LineSegment(Vector(16.75, 0, 0), Vector(16.75, 4.4, 0)),  # 3
    Part.ArcOfCircle(Part.Circle(Vector(15.75, 4.4, 0), Vector(0, 0, 1), 1), math.radians(0.000013), math.radians(156.421807)),  # 4
    Part.ArcOfCircle(Part.Circle(Vector(13.916969, 5.200001, 0), Vector(0, 0, 1), 1.000001), math.radians(-89.999944), math.radians(-23.578227)),  # 5
], False)
sketch13.addConstraint([
    Sketcher.Constraint("Coincident", 0, 2, 1, 1),
    Sketcher.Constraint("Coincident", 1, 2, 2, 1),
    Sketcher.Constraint("Coincident", 2, 2, 3, 1),
    Sketcher.Constraint("Tangent", 3, 2, 4, 1),
    Sketcher.Constraint("Tangent", 4, 2, 5, 2),
    Sketcher.Constraint("Tangent", 5, 1, 0, 1),
    Sketcher.Constraint("Horizontal", 0),
    Sketcher.Constraint("Vertical", 1),
    Sketcher.Constraint("Horizontal", 2),
    Sketcher.Constraint("Vertical", 3),
    Sketcher.Constraint("Equal", 4, 5),
    Sketcher.Constraint("PointOnObject", 1, 2, -1),
    Sketcher.Constraint("Radius", 4, Q("1 mm")),
    Sketcher.Constraint("DistanceX", 2, 1, 2, 2, Q("14.8 mm")),
    Sketcher.Constraint("DistanceY", 1, 2, 1, 1, Q("4.2 mm")),
    Sketcher.Constraint("DistanceY", 3, 1, 3, 2, Q("4.4 mm")),
    Sketcher.Constraint("DistanceX", -1, 1, 4, 3, Q("15.75 mm")),
])
pocket8 = doc.addObject("PartDesign::Pocket", "Pocket007")
body.addObject(pocket8)
pocket8.Profile = sketch13
pocket8.Length = 7.5
pocket8.Midplane = True
doc.recompute()

linearpattern = doc.addObject("PartDesign::LinearPattern", "LinearPattern")
body.addObject(linearpattern)
linearpattern.Originals = [pocket7, pocket8]
linearpattern.Direction = (doc.X_Axis, [""])
linearpattern.Mode = "offset"
linearpattern.Offset = 17.3
linearpattern.Occurrences = 2
body.Tip = linearpattern

# Sketch on XY plane
sketch14 = doc.addObject("Sketcher::SketchObject", "Sketch013")
body.addObject(sketch14)
sketch14.AttachmentSupport = (doc.XY_Plane, [""])
sketch14.MapMode = "FlatFace"
sketch14.AttachmentOffset = App.Placement(Vector(0, 0, 4), App.Rotation())
sketch14.addGeometry([
    Part.ArcOfCircle(Part.Circle(Vector(24, 15.35, 0), Vector(0, 0, 1), 3), math.radians(0), math.radians(180)),
    Part.LineSegment(Vector(21, 15.35, 0), Vector(21, 11.85, 0)),
    Part.ArcOfCircle(Part.Circle(Vector(24, 11.85, 0), Vector(0, 0, 1), 3), math.radians(180), math.radians(360)),
    Part.LineSegment(Vector(27, 11.85, 0), Vector(27, 15.35, 0)),
], False)
sketch14.addConstraint([
    Sketcher.Constraint("Tangent", 0, 2, 1, 1),
    Sketcher.Constraint("Tangent", 1, 2, 2, 1),
    Sketcher.Constraint("Tangent", 2, 2, 3, 1),
    Sketcher.Constraint("Tangent", 3, 2, 0, 1),
    Sketcher.Constraint("Vertical", 1),
    Sketcher.Constraint("Vertical", 3),
    Sketcher.Constraint("Radius", 0, Q("3 mm")),
    Sketcher.Constraint("DistanceY", 1, 2, 1, 1, Q("3.5 mm")),
    Sketcher.Constraint("DistanceX", -1, 1, 0, 3, Q("24 mm")),
    Sketcher.Constraint("DistanceY", -1, 1, 0, 3, Q("15.35 mm")),
])
pocket9 = doc.addObject("PartDesign::Pocket", "Pocket008")
body.addObject(pocket9)
pocket9.Profile = sketch14
pocket9.Type = "ThroughAll"

# Sketch on XZ plane
sketch15 = doc.addObject("Sketcher::SketchObject", "Sketch014")
body.addObject(sketch15)
sketch15.AttachmentSupport = (doc.XZ_Plane, [""])
sketch15.MapMode = "FlatFace"
sketch15.AttachmentOffset = App.Placement(Vector(0, 0, -5), App.Rotation())
sketch15.addGeometry([
    Part.LineSegment(Vector(30.4, 4.5, 0), Vector(30, 4.5, 0)),  # 0
    Part.LineSegment(Vector(30, 4.5, 0), Vector(30, -6, 0)),  # 1
    Part.LineSegment(Vector(30, -6, 0), Vector(32.8, -6, 0)),  # 2
    Part.LineSegment(Vector(32.8, -6, 0), Vector(31.8, -5, 0)),  # 3
    Part.LineSegment(Vector(31.8, -5, 0), Vector(30.4, 4.5, 0)),  # 4
], False)
sketch15.addGeometry(Part.LineSegment(Vector(30, -6, 0), Vector(30, 4.5, 0)), True)  # axis
sketch15.addConstraint([
    Sketcher.Constraint("Coincident", 0, 2, 1, 1),
    Sketcher.Constraint("Coincident", 1, 2, 2, 1),
    Sketcher.Constraint("Coincident", 2, 2, 3, 1),
    Sketcher.Constraint("Coincident", 3, 2, 4, 1),
    Sketcher.Constraint("Coincident", 4, 2, 0, 1),
    Sketcher.Constraint("Horizontal", 0),
    Sketcher.Constraint("Vertical", 1),
    Sketcher.Constraint("Horizontal", 2),
    Sketcher.Constraint("Vertical", 5),
    Sketcher.Constraint("Coincident", 5, 1, 1, 2),
    Sketcher.Constraint("Horizontal", 4, 2, 5, 2),
    Sketcher.Constraint("Angle", 3, Q("135 deg")),
    Sketcher.Constraint("DistanceX", 0, 2, 0, 1, Q("0.4 mm")),
    Sketcher.Constraint("DistanceX", 2, 1, 2, 2, Q("2.8 mm")),
    Sketcher.Constraint("DistanceY", 1, 2, 1, 1, Q("10.5 mm")),
    Sketcher.Constraint("DistanceX", -1, 1, 0, 2, Q("30 mm")),
    Sketcher.Constraint("DistanceY", 1, 2, -1, 1, Q("6 mm")),
    Sketcher.Constraint("DistanceY", 3, 2, -1, 1, Q("5 mm")),
])
groove = doc.addObject("PartDesign::Groove", "Groove")
body.addObject(groove)
groove.Profile = sketch15
groove.ReferenceAxis = (sketch15, ["Axis0"])
groove.Angle = 360

# Sketch on XZ plane
sketch16 = doc.addObject("Sketcher::SketchObject", "Sketch015")
body.addObject(sketch16)
sketch16.AttachmentSupport = (doc.XZ_Plane, [""])
sketch16.MapMode = "FlatFace"
sketch16.AttachmentOffset = App.Placement(Vector(0, 0, -55), App.Rotation())
sketch16.addGeometry([
    Part.LineSegment(Vector(-29.6, 4.5, 0), Vector(-30, 4.5, 0)),  # 0
    Part.LineSegment(Vector(-30, 4.5, 0), Vector(-30, -6, 0)),  # 1
    Part.LineSegment(Vector(-30, -6, 0), Vector(-27.2, -6, 0)),  # 2
    Part.LineSegment(Vector(-27.2, -6, 0), Vector(-28.2, -5, 0)),  # 3
    Part.LineSegment(Vector(-28.2, -5, 0), Vector(-29.6, 4.5, 0)),  # 4
], False)
sketch16.addGeometry(Part.LineSegment(Vector(-30, -6, 0), Vector(-30, 4.5, 0)), True)  # axis
sketch16.addConstraint([
    Sketcher.Constraint("Coincident", 0, 2, 1, 1),
    Sketcher.Constraint("Coincident", 1, 2, 2, 1),
    Sketcher.Constraint("Coincident", 2, 2, 3, 1),
    Sketcher.Constraint("Coincident", 3, 2, 4, 1),
    Sketcher.Constraint("Coincident", 4, 2, 0, 1),
    Sketcher.Constraint("Horizontal", 0),
    Sketcher.Constraint("Vertical", 1),
    Sketcher.Constraint("Horizontal", 2),
    Sketcher.Constraint("Vertical", 5),
    Sketcher.Constraint("Coincident", 5, 1, 1, 2),
    Sketcher.Constraint("Horizontal", 4, 2, 5, 2),
    Sketcher.Constraint("Angle", 3, Q("135 deg")),
    Sketcher.Constraint("DistanceX", 0, 2, 0, 1, Q("0.4 mm")),
    Sketcher.Constraint("DistanceX", 2, 1, 2, 2, Q("2.8 mm")),
    Sketcher.Constraint("DistanceY", 1, 2, 1, 1, Q("10.5 mm")),
    Sketcher.Constraint("DistanceX", 0, 2, -1, 1, Q("30 mm")),
    Sketcher.Constraint("DistanceY", 1, 2, -1, 1, Q("6 mm")),
    Sketcher.Constraint("DistanceY", 3, 2, -1, 1, Q("5 mm")),
])
groove2 = doc.addObject("PartDesign::Groove", "Groove001")
body.addObject(groove2)
groove2.Profile = sketch16
groove2.ReferenceAxis = (sketch16, ["Axis0"])
groove2.Angle = 360

# Sketch on XY plane
sketch17 = doc.addObject("Sketcher::SketchObject", "Sketch016")
body.addObject(sketch17)
sketch17.AttachmentSupport = (doc.XY_Plane, [""])
sketch17.MapMode = "FlatFace"
sketch17.AttachmentOffset = App.Placement(Vector(0, 0, 2), App.Rotation())
sketch17.addGeometry([
    Part.LineSegment(Vector(-2.5, 57.75, 0), Vector(-24.5, 57.75, 0)),  # 0
    Part.ArcOfCircle(Part.Circle(Vector(-24.500001, 56.750001, 0), Vector(0, 0, 1), 0.999999), math.radians(89.999957), math.radians(180.000043)),  # 1
    Part.LineSegment(Vector(-25.5, 56.75, 0), Vector(-25.5, 39.25, 0)),  # 2
    Part.ArcOfCircle(Part.Circle(Vector(-24.500001, 39.249999, 0), Vector(0, 0, 1), 0.999999), math.radians(179.999957), math.radians(270.000043)),  # 3
    Part.LineSegment(Vector(-24.5, 38.25, 0), Vector(-2.5, 38.25, 0)),  # 4
    Part.ArcOfCircle(Part.Circle(Vector(-2.499999, 39.249999, 0), Vector(0, 0, 1), 0.999999), math.radians(-90.000043), math.radians(0.000043)),  # 5
    Part.LineSegment(Vector(-1.5, 39.25, 0), Vector(-1.5, 56.75, 0)),  # 6
    Part.ArcOfCircle(Part.Circle(Vector(-2.499999, 56.750001, 0), Vector(0, 0, 1), 0.999999), math.radians(-0.000043), math.radians(90.000043)),  # 7
], False)
sketch17.addConstraint([
    Sketcher.Constraint("Tangent", 0, 2, 1, 1),
    Sketcher.Constraint("Tangent", 1, 2, 2, 1),
    Sketcher.Constraint("Tangent", 2, 2, 3, 1),
    Sketcher.Constraint("Tangent", 3, 2, 4, 1),
    Sketcher.Constraint("Tangent", 4, 2, 5, 1),
    Sketcher.Constraint("Tangent", 5, 2, 6, 1),
    Sketcher.Constraint("Tangent", 6, 2, 7, 1),
    Sketcher.Constraint("Tangent", 7, 2, 0, 1),
    Sketcher.Constraint("Horizontal", 0),
    Sketcher.Constraint("Vertical", 2),
    Sketcher.Constraint("Horizontal", 4),
    Sketcher.Constraint("Vertical", 6),
    Sketcher.Constraint("Equal", 1, 3),
    Sketcher.Constraint("Equal", 3, 5),
    Sketcher.Constraint("Equal", 5, 7),
    Sketcher.Constraint("Radius", 1, Q("0.999999 mm")),
    Sketcher.Constraint("DistanceX", 0, 2, 0, 1, Q("22 mm")),
    Sketcher.Constraint("DistanceY", 2, 2, 2, 1, Q("17.5 mm")),
    Sketcher.Constraint("DistanceX", 1, 3, -1, 1, Q("24.500001 mm")),
    Sketcher.Constraint("DistanceY", -1, 1, 1, 3, Q("56.750001 mm")),
])
pocket10 = doc.addObject("PartDesign::Pocket", "Pocket009")
body.addObject(pocket10)
pocket10.Profile = sketch17
pocket10.Type = "ThroughAll"

# Sketch on XY plane
sketch18 = doc.addObject("Sketcher::SketchObject", "Sketch017")
body.addObject(sketch18)
sketch18.AttachmentSupport = (doc.XY_Plane, [""])
sketch18.MapMode = "FlatFace"
sketch18.AttachmentOffset = App.Placement(Vector(0, 0, 2), App.Rotation())
sketch18.addGeometry([
    Part.LineSegment(Vector(-2.2, 37.5, 0), Vector(-27.8, 37.5, 0)),  # 0
    Part.ArcOfCircle(Part.Circle(Vector(-27.800001, 36.500001, 0), Vector(0, 0, 1), 0.999999), math.radians(89.999957), math.radians(180.000043)),  # 1
    Part.LineSegment(Vector(-28.8, 36.5, 0), Vector(-28.8, 2.5, 0)),  # 2
    Part.ArcOfCircle(Part.Circle(Vector(-27.800001, 2.499999, 0), Vector(0, 0, 1), 0.999999), math.radians(179.999957), math.radians(270.000043)),  # 3
    Part.LineSegment(Vector(-27.8, 1.5, 0), Vector(-2.2, 1.5, 0)),  # 4
    Part.ArcOfCircle(Part.Circle(Vector(-2.199999, 2.499999, 0), Vector(0, 0, 1), 0.999999), math.radians(-90.000043), math.radians(0.000043)),  # 5
    Part.LineSegment(Vector(-1.2, 2.5, 0), Vector(-1.2, 36.5, 0)),  # 6
    Part.ArcOfCircle(Part.Circle(Vector(-2.199999, 36.500001, 0), Vector(0, 0, 1), 0.999999), math.radians(-0.000043), math.radians(90.000043)),  # 7
], False)
sketch18.addConstraint([
    Sketcher.Constraint("Tangent", 0, 2, 1, 1),
    Sketcher.Constraint("Tangent", 1, 2, 2, 1),
    Sketcher.Constraint("Tangent", 2, 2, 3, 1),
    Sketcher.Constraint("Tangent", 3, 2, 4, 1),
    Sketcher.Constraint("Tangent", 4, 2, 5, 1),
    Sketcher.Constraint("Tangent", 5, 2, 6, 1),
    Sketcher.Constraint("Tangent", 6, 2, 7, 1),
    Sketcher.Constraint("Tangent", 7, 2, 0, 1),
    Sketcher.Constraint("Horizontal", 0),
    Sketcher.Constraint("Vertical", 2),
    Sketcher.Constraint("Horizontal", 4),
    Sketcher.Constraint("Vertical", 6),
    Sketcher.Constraint("Equal", 1, 3),
    Sketcher.Constraint("Equal", 3, 5),
    Sketcher.Constraint("Equal", 5, 7),
    Sketcher.Constraint("Radius", 1, Q("0.999999 mm")),
    Sketcher.Constraint("DistanceY", 2, 2, 2, 1, Q("34 mm")),
    Sketcher.Constraint("DistanceX", 0, 2, 0, 1, Q("25.6 mm")),
    Sketcher.Constraint("DistanceX", 1, 3, -1, 1, Q("27.800001 mm")),
    Sketcher.Constraint("DistanceY", -1, 1, 1, 3, Q("36.500001 mm")),
])
pocket11 = doc.addObject("PartDesign::Pocket", "Pocket010")
body.addObject(pocket11)
pocket11.Profile = sketch18
pocket11.Type = "ThroughAll"

# Sketch on XZ plane
sketch19 = doc.addObject("Sketcher::SketchObject", "Sketch018")
body.addObject(sketch19)
sketch19.AttachmentSupport = (doc.XZ_Plane, [""])
sketch19.MapMode = "FlatFace"
sketch19.addGeometry([
    Part.LineSegment(Vector(-20, -0.5, 0), Vector(-20, -5.5, 0)),
    Part.LineSegment(Vector(-20, -5.5, 0), Vector(-10, -5.5, 0)),
    Part.LineSegment(Vector(-10, -5.5, 0), Vector(-10, -0.5, 0)),
    Part.LineSegment(Vector(-10, -0.5, 0), Vector(-20, -0.5, 0)),
], False)
sketch19.addConstraint([
    Sketcher.Constraint("Coincident", 0, 2, 1, 1),
    Sketcher.Constraint("Coincident", 1, 2, 2, 1),
    Sketcher.Constraint("Coincident", 2, 2, 3, 1),
    Sketcher.Constraint("Coincident", 3, 2, 0, 1),
    Sketcher.Constraint("Vertical", 0),
    Sketcher.Constraint("Horizontal", 1),
    Sketcher.Constraint("Vertical", 2),
    Sketcher.Constraint("Horizontal", 3),
    Sketcher.Constraint("DistanceX", 1, 1, 1, 2, Q("10 mm")),
    Sketcher.Constraint("DistanceY", 0, 2, 0, 1, Q("5 mm")),
    Sketcher.Constraint("DistanceX", 0, 2, -1, 1, Q("20 mm")),
    Sketcher.Constraint("DistanceY", 0, 2, -1, 1, Q("5.5 mm")),
])
pocket12 = doc.addObject("PartDesign::Pocket", "Pocket011")
body.addObject(pocket12)
pocket12.Profile = sketch19
pocket12.Length = 5

doc.recompute()
